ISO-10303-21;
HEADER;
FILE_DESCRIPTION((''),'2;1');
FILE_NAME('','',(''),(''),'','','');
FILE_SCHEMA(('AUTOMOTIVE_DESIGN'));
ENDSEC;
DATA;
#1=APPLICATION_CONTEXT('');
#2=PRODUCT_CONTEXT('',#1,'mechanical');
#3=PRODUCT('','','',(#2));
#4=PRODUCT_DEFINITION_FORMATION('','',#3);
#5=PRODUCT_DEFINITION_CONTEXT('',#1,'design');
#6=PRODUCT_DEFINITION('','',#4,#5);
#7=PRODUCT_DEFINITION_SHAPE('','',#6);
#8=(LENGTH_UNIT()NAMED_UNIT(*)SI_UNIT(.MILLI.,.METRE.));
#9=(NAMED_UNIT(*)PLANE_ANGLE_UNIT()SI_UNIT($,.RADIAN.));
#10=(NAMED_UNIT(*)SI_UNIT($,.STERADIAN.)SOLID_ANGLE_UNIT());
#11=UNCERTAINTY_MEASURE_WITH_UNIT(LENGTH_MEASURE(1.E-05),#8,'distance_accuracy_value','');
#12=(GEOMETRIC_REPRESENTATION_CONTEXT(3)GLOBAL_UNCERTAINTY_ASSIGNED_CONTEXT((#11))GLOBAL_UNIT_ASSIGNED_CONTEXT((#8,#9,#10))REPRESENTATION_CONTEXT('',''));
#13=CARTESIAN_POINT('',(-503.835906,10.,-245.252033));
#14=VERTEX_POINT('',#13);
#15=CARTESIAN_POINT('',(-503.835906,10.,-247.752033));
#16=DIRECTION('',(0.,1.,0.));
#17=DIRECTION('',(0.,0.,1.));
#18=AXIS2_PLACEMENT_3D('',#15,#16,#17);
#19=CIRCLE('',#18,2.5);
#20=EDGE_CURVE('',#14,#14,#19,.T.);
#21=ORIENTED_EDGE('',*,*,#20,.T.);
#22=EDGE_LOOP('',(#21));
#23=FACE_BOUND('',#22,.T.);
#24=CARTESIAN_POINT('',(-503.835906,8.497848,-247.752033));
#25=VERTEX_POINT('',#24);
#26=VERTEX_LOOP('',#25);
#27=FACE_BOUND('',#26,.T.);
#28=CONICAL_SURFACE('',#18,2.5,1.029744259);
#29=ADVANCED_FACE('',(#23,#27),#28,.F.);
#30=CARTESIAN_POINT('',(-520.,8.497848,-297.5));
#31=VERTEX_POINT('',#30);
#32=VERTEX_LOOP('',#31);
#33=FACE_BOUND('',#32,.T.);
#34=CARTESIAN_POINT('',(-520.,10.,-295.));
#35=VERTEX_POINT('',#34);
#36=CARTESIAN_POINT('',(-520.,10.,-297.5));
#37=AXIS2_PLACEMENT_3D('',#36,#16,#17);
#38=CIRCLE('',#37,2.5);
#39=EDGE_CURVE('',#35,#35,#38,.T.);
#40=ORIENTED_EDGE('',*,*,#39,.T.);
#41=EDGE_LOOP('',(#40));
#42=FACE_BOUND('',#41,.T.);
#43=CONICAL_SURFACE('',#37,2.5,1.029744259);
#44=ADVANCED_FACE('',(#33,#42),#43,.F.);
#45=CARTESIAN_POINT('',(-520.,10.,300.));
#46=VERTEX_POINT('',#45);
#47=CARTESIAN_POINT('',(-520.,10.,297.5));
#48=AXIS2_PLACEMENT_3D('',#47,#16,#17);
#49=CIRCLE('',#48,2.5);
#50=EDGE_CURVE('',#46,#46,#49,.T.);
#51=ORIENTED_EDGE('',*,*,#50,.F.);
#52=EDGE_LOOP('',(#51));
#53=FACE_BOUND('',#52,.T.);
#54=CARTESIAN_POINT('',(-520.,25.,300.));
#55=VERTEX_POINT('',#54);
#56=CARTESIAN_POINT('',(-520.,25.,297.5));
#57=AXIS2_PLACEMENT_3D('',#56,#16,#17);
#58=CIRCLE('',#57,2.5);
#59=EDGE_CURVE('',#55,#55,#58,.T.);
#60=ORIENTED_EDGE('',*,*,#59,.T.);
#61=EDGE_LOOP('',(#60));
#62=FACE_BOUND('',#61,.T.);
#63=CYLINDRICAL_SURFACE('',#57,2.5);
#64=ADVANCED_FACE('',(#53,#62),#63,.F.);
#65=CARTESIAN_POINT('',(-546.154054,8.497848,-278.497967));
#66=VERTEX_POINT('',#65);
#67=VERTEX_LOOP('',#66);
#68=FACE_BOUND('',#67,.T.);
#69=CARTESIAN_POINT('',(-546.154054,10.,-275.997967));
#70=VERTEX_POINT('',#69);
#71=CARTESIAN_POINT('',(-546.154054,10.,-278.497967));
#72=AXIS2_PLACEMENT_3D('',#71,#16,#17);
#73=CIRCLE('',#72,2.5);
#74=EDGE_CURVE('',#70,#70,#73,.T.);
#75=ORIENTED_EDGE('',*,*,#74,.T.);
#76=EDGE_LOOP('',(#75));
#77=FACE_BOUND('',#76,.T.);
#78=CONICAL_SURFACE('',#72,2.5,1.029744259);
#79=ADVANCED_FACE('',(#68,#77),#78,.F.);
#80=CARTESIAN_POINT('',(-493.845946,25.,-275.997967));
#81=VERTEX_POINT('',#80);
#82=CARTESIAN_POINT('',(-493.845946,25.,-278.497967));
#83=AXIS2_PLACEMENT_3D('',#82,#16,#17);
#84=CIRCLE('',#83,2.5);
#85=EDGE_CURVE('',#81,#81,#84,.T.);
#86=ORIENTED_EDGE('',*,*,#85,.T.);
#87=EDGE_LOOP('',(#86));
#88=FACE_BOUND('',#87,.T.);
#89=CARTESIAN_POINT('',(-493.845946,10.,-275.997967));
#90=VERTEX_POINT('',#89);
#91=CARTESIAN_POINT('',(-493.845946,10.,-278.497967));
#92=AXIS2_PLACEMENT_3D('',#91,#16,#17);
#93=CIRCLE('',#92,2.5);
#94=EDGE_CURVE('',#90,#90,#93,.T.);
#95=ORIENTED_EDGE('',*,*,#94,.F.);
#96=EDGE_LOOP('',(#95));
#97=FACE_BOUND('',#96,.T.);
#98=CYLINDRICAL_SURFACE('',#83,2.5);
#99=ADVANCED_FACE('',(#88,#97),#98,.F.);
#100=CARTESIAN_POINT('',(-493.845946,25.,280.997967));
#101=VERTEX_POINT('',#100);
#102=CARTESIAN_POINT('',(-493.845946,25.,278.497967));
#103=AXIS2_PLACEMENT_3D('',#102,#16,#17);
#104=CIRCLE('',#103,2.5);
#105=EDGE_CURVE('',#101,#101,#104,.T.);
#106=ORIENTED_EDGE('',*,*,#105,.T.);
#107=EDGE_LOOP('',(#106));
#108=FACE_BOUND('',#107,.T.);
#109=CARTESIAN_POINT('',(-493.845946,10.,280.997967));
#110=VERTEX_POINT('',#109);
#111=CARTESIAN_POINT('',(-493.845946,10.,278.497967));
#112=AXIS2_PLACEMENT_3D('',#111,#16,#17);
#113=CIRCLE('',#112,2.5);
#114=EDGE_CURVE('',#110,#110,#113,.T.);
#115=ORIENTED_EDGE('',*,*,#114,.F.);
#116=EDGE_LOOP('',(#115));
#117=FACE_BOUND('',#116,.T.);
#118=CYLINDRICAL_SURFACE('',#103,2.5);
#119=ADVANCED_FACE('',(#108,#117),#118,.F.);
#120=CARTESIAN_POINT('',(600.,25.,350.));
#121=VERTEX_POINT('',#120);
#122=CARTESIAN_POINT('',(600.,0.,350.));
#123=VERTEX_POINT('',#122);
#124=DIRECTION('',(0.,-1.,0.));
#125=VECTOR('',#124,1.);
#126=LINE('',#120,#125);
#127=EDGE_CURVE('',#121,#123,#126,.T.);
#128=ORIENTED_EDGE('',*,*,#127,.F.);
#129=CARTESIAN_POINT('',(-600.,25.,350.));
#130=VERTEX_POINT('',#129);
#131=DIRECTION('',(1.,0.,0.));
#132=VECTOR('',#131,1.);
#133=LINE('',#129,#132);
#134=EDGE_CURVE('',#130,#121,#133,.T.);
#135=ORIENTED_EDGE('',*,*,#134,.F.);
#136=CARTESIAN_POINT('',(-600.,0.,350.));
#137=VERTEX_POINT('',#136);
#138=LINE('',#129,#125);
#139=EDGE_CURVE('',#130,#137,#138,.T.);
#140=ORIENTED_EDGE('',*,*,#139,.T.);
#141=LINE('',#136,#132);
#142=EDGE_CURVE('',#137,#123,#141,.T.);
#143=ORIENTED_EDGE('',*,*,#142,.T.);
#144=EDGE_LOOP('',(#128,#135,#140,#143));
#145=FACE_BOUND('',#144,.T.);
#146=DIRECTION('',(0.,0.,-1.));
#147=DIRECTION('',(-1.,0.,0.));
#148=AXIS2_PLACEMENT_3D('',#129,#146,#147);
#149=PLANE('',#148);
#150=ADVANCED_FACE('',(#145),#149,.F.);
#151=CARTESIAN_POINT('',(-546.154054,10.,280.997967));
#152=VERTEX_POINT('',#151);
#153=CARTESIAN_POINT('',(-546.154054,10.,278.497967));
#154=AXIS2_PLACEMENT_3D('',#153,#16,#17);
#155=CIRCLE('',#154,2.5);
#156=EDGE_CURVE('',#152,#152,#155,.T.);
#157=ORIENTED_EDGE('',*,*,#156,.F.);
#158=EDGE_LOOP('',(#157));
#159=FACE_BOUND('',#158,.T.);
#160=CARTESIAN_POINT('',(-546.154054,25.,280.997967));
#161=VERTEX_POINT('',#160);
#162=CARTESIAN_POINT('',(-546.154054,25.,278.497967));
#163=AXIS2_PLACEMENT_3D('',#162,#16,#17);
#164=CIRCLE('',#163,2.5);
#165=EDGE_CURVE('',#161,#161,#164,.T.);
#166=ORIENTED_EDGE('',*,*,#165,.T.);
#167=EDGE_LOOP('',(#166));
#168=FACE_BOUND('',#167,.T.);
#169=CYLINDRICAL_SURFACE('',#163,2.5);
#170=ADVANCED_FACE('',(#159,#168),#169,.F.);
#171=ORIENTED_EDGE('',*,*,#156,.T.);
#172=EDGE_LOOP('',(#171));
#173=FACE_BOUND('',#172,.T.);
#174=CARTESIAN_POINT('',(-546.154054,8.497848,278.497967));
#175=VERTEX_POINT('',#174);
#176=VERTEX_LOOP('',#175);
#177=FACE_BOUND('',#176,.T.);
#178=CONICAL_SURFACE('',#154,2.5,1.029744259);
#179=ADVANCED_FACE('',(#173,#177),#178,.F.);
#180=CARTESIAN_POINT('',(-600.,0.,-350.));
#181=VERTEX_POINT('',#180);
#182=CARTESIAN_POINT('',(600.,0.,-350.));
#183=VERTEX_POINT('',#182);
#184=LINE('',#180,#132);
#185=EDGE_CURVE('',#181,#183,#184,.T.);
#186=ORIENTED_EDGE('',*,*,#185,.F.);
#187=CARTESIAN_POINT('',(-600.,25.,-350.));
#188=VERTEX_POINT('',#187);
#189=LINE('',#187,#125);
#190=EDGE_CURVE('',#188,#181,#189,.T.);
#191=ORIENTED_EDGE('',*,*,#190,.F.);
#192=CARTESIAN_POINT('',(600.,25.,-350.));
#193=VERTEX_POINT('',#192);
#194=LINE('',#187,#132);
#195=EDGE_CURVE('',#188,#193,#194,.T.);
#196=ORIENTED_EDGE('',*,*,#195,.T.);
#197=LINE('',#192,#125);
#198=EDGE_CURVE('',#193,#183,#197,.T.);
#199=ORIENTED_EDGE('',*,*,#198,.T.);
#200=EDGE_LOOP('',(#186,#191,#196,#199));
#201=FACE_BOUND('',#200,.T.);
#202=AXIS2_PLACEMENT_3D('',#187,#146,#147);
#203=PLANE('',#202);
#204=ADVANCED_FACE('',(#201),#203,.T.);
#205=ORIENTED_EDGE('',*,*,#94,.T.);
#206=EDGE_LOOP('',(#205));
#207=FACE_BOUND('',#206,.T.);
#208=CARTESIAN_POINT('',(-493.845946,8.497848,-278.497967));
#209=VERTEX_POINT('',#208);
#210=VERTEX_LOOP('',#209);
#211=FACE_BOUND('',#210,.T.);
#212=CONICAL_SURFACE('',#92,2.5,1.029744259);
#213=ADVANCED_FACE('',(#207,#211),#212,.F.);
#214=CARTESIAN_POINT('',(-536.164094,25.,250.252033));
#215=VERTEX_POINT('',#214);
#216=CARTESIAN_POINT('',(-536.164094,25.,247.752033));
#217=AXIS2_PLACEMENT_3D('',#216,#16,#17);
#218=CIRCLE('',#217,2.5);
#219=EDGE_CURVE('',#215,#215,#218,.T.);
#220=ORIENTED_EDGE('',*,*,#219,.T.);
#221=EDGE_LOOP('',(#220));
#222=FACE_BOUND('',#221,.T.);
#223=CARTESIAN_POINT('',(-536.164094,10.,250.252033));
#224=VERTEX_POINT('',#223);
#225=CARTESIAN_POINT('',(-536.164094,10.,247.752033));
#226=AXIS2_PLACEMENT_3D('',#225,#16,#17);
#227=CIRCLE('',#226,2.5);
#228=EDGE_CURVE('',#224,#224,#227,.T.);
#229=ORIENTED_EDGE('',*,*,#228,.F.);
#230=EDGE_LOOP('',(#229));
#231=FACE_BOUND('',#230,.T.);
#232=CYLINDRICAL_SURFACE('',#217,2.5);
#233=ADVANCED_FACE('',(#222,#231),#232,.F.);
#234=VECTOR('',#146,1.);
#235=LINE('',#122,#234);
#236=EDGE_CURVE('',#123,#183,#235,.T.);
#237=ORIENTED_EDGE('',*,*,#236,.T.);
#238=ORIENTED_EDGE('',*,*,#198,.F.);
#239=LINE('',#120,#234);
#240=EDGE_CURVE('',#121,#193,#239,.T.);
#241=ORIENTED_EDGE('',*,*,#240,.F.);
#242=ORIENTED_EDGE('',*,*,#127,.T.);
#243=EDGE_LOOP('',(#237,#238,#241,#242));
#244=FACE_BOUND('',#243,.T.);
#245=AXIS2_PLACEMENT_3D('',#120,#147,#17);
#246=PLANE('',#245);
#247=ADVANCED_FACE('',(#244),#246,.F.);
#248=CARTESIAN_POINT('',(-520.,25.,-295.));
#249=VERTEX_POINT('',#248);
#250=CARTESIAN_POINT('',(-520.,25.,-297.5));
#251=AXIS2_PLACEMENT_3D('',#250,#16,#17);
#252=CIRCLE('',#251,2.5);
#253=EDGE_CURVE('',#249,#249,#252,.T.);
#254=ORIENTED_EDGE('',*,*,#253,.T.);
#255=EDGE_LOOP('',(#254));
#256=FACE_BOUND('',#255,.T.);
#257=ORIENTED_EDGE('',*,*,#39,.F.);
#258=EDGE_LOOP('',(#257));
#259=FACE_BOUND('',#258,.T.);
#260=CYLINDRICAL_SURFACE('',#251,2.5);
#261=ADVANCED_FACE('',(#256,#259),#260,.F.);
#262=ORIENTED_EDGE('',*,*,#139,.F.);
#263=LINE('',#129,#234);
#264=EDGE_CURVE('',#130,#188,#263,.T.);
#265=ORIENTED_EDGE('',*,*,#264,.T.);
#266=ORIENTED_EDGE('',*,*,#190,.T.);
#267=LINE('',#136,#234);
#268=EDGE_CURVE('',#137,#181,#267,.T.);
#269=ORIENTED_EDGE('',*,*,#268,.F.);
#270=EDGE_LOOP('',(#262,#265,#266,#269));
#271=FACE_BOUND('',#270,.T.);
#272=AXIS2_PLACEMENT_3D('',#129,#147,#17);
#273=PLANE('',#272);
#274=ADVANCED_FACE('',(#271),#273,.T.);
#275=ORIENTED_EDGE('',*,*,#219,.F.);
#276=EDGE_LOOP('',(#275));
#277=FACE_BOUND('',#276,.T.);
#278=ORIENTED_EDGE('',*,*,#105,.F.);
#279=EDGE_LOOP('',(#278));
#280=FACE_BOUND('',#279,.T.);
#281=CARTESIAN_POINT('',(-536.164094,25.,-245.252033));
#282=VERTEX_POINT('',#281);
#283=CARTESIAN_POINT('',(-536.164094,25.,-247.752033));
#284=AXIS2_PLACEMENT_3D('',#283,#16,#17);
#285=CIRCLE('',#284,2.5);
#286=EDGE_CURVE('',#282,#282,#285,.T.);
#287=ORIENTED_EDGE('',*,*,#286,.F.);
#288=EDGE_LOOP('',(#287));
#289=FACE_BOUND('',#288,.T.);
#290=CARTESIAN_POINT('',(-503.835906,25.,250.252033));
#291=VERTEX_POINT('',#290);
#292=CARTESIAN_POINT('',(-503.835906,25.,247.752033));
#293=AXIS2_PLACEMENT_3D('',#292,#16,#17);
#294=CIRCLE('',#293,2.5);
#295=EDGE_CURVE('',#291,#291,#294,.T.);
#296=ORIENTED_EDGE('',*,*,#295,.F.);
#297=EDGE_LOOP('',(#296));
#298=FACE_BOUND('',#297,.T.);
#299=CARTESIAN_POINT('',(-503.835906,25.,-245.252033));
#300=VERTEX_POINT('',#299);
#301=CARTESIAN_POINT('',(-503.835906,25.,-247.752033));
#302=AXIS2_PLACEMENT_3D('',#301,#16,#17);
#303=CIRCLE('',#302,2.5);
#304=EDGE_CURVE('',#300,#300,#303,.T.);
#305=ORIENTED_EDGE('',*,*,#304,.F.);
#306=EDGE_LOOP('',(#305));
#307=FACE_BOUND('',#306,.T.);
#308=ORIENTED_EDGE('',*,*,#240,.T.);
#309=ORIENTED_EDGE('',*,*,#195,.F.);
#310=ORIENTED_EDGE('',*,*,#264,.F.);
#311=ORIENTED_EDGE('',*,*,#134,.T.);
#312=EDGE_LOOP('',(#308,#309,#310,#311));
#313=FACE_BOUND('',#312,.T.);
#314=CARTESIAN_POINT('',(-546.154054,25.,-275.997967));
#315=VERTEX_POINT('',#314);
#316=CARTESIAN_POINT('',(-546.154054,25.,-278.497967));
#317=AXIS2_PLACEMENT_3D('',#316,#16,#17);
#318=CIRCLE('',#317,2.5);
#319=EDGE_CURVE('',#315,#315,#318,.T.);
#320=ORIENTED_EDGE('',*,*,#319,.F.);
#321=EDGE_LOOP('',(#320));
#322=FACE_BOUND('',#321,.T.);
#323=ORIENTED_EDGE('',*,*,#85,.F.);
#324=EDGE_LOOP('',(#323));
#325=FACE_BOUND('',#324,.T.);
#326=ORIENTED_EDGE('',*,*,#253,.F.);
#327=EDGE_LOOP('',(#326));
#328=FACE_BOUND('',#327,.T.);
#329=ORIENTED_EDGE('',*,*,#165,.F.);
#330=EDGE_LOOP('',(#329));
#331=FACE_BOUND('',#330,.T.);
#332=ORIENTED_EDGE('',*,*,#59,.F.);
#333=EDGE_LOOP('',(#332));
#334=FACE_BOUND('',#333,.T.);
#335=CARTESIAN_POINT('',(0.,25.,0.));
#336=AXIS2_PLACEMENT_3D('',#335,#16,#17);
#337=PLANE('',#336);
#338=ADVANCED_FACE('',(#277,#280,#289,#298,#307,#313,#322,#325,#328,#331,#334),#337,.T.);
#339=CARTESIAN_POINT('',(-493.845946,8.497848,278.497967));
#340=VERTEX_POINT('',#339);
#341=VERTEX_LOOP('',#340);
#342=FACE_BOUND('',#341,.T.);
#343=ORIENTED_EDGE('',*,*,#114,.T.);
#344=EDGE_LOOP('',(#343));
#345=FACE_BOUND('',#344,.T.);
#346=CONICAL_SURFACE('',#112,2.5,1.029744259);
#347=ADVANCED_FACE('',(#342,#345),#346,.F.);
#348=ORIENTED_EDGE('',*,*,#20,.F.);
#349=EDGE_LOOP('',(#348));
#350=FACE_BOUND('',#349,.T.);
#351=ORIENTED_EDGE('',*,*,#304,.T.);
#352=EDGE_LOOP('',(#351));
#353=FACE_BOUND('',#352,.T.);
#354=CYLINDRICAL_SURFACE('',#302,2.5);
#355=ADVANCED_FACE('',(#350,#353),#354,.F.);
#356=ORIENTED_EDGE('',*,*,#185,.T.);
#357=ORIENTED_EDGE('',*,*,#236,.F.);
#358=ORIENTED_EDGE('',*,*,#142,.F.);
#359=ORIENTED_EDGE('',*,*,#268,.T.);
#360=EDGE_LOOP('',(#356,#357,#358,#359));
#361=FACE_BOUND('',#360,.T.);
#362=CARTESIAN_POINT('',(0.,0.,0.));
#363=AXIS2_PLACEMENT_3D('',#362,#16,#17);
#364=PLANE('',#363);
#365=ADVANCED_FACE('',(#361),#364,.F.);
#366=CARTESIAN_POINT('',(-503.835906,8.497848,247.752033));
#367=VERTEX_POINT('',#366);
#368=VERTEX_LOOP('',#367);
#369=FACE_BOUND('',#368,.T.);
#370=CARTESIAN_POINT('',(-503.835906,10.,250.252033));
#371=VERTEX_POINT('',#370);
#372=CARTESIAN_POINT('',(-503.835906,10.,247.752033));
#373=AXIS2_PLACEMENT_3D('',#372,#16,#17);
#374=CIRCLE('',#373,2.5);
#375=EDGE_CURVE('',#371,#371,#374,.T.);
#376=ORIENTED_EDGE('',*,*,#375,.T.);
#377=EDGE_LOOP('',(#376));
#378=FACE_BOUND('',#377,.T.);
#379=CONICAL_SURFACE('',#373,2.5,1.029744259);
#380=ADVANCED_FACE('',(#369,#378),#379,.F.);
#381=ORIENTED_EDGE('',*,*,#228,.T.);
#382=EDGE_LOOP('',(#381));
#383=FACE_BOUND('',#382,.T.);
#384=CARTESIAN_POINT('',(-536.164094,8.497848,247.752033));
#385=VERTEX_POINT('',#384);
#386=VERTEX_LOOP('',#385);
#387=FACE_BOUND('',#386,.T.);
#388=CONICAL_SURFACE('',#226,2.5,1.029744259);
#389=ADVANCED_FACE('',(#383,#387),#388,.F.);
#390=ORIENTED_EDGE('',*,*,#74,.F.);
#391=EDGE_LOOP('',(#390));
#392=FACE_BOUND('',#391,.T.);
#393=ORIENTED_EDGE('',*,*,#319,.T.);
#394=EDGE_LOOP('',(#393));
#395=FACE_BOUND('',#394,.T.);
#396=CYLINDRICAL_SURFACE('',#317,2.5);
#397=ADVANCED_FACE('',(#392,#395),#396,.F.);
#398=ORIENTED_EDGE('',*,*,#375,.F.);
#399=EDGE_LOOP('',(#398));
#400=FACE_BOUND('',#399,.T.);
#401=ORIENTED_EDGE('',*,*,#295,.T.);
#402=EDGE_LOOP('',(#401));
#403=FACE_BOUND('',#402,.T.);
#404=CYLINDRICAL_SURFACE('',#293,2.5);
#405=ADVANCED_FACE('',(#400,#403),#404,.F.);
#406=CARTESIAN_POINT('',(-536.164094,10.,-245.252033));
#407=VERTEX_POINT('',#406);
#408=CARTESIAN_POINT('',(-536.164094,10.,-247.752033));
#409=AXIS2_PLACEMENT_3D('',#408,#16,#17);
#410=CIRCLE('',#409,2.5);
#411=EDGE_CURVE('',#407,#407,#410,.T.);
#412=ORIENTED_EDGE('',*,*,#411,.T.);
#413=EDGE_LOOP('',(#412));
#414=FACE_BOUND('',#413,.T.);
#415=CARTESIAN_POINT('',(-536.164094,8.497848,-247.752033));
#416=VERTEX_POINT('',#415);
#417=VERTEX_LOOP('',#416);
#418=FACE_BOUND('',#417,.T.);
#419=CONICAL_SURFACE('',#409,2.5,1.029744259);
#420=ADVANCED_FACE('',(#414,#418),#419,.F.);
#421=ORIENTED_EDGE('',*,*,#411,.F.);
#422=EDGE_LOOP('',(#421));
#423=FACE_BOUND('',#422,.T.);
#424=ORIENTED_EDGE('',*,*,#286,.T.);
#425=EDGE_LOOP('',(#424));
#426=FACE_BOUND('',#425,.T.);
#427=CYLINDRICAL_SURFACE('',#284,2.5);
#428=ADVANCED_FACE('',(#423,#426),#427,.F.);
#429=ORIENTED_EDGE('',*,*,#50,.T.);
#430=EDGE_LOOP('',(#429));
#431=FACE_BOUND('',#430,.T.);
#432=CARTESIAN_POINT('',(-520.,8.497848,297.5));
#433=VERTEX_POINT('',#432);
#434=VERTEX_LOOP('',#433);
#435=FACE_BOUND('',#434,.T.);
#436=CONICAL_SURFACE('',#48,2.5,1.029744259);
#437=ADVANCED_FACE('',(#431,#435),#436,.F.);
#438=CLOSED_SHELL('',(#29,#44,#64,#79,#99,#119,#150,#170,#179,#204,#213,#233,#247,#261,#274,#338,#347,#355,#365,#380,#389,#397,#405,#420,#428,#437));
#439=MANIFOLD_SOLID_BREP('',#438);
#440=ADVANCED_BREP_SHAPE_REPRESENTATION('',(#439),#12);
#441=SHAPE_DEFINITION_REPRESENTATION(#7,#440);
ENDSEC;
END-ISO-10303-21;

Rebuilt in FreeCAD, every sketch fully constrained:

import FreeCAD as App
import Part
import Sketcher

doc = App.newDocument("Part")
body = doc.addObject("PartDesign::Body", "Body")

# Sketch on XZ plane
sketch1 = body.newObject("Sketcher::SketchObject", "Sketch")
sketch1.AttachmentSupport = (doc.getObject("XZ_Plane"), [""])
sketch1.MapMode = "FlatFace"
sketch1.addGeometry(Part.LineSegment(App.Vector(-600, -350, 0), App.Vector(-600, 350, 0)), False)
sketch1.addGeometry(Part.LineSegment(App.Vector(-600, 350, 0), App.Vector(600, 350, 0)), False)
sketch1.addGeometry(Part.LineSegment(App.Vector(600, 350, 0), App.Vector(600, -350, 0)), False)
sketch1.addGeometry(Part.LineSegment(App.Vector(600, -350, 0), App.Vector(-600, -350, 0)), False)
sketch1.addConstraint(Sketcher.Constraint("Coincident", 0, 2, 1, 1))
sketch1.addConstraint(Sketcher.Constraint("Coincident", 1, 2, 2, 1))
sketch1.addConstraint(Sketcher.Constraint("Coincident", 2, 2, 3, 1))
sketch1.addConstraint(Sketcher.Constraint("Coincident", 3, 2, 0, 1))
sketch1.addConstraint(Sketcher.Constraint("Vertical", 0))
sketch1.addConstraint(Sketcher.Constraint("Horizontal", 1))
sketch1.addConstraint(Sketcher.Constraint("Vertical", 2))
sketch1.addConstraint(Sketcher.Constraint("Horizontal", 3))
sketch1.addConstraint(Sketcher.Constraint("Symmetric", 0, 2, 2, 2, -1, 1))
sketch1.addConstraint(Sketcher.Constraint("DistanceX", 1, 1, 1, 2, 1200.0))
sketch1.addConstraint(Sketcher.Constraint("DistanceY", 0, 1, 0, 2, 700.0))
pad1 = body.newObject("PartDesign::Pad", "Pad")
pad1.Profile = sketch1
pad1.Length = 25
pad1.Reversed = True

# Sketch on XZ plane
sketch2 = body.newObject("Sketcher::SketchObject", "Sketch001")
sketch2.AttachmentSupport = (doc.getObject("XZ_Plane"), [""])
sketch2.MapMode = "FlatFace"
sketch2.AttachmentOffset = App.Placement(App.Vector(0, 0, -25), App.Rotation())
sketch2.addGeometry(Part.Circle(App.Vector(-493.8, -278.5, 0), App.Vector(0, 0, 1), 2.5), False)
sketch2.addGeometry(Part.Circle(App.Vector(-520, -297.5, 0), App.Vector(0, 0, 1), 2.5), False)
sketch2.addGeometry(Part.Circle(App.Vector(-546.2, -278.5, 0), App.Vector(0, 0, 1), 2.5), False)
sketch2.addGeometry(Part.Circle(App.Vector(-536.2, -247.8, 0), App.Vector(0, 0, 1), 2.5), False)
sketch2.addGeometry(Part.Circle(App.Vector(-503.8, -247.8, 0), App.Vector(0, 0, 1), 2.5), False)
sketch2.addGeometry(Part.Circle(App.Vector(-493.8, 278.5, 0), App.Vector(0, 0, 1), 2.5), False)
sketch2.addGeometry(Part.Circle(App.Vector(-503.8, 247.8, 0), App.Vector(0, 0, 1), 2.5), False)
sketch2.addGeometry(Part.Circle(App.Vector(-536.2, 247.8, 0), App.Vector(0, 0, 1), 2.5), False)
sketch2.addGeometry(Part.Circle(App.Vector(-546.2, 278.5, 0), App.Vector(0, 0, 1), 2.5), False)
sketch2.addGeometry(Part.Circle(App.Vector(-520, 297.5, 0), App.Vector(0, 0, 1), 2.5), False)
sketch2.addConstraint(Sketcher.Constraint("Equal", 0, 1))
sketch2.addConstraint(Sketcher.Constraint("Equal", 1, 2))
sketch2.addConstraint(Sketcher.Constraint("Equal", 2, 3))
sketch2.addConstraint(Sketcher.Constraint("Equal", 3, 4))
sketch2.addConstraint(Sketcher.Constraint("Equal", 4, 5))
sketch2.addConstraint(Sketcher.Constraint("Equal", 5, 6))
sketch2.addConstraint(Sketcher.Constraint("Equal", 6, 7))
sketch2.addConstraint(Sketcher.Constraint("Equal", 7, 8))
sketch2.addConstraint(Sketcher.Constraint("Equal", 8, 9))
sketch2.addConstraint(Sketcher.Constraint("Symmetric", 0, 3, 5, 3, -1))
sketch2.addConstraint(Sketcher.Constraint("Symmetric", 4, 3, 6, 3, -1))
sketch2.addConstraint(Sketcher.Constraint("Symmetric", 3, 3, 7, 3, -1))
sketch2.addConstraint(Sketcher.Constraint("Symmetric", 2, 3, 8, 3, -1))
sketch2.addConstraint(Sketcher.Constraint("Symmetric", 1, 3, 9, 3, -1))
sketch2.addConstraint(Sketcher.Constraint("Horizontal", 0, 3, 2, 3))
sketch2.addConstraint(Sketcher.Constraint("Horizontal", 3, 3, 4, 3))
sketch2.addConstraint(Sketcher.Constraint("Diameter", 0, 5.0))
sketch2.addConstraint(Sketcher.Constraint("DistanceX", 1, 3, -1, 1, 520.0))
sketch2.addConstraint(Sketcher.Constraint("DistanceY", 1, 3, -1, 1, 297.5))
sketch2.addConstraint(Sketcher.Constraint("DistanceY", 4, 3, 5, 3, 526.25))
sketch2.addConstraint(Sketcher.Constraint("DistanceX", 2, 3, 0, 3, 52.308108))
sketch2.addConstraint(Sketcher.Constraint("DistanceX", 2, 3, 3, 3, 9.98996))
sketch2.addConstraint(Sketcher.Constraint("DistanceX", 4, 3, 0, 3, 9.98996))
sketch2.addConstraint(Sketcher.Constraint("DistanceX", 0, 3, -1, 1, 493.845946))
sketch2.addConstraint(Sketcher.Constraint("DistanceY", 0, 3, -1, 1, 278.497967))
doc.recompute()
hole = body.newObject("PartDesign::Hole", "Hole")
hole.Profile = sketch2
hole.ThreadType = "None"
hole.Diameter = 5
hole.DepthType = "Dimension"
hole.Depth = 15
hole.DrillPoint = "Angled"
hole.DrillPointAngle = 118
hole.Reversed = True

doc.recompute()
